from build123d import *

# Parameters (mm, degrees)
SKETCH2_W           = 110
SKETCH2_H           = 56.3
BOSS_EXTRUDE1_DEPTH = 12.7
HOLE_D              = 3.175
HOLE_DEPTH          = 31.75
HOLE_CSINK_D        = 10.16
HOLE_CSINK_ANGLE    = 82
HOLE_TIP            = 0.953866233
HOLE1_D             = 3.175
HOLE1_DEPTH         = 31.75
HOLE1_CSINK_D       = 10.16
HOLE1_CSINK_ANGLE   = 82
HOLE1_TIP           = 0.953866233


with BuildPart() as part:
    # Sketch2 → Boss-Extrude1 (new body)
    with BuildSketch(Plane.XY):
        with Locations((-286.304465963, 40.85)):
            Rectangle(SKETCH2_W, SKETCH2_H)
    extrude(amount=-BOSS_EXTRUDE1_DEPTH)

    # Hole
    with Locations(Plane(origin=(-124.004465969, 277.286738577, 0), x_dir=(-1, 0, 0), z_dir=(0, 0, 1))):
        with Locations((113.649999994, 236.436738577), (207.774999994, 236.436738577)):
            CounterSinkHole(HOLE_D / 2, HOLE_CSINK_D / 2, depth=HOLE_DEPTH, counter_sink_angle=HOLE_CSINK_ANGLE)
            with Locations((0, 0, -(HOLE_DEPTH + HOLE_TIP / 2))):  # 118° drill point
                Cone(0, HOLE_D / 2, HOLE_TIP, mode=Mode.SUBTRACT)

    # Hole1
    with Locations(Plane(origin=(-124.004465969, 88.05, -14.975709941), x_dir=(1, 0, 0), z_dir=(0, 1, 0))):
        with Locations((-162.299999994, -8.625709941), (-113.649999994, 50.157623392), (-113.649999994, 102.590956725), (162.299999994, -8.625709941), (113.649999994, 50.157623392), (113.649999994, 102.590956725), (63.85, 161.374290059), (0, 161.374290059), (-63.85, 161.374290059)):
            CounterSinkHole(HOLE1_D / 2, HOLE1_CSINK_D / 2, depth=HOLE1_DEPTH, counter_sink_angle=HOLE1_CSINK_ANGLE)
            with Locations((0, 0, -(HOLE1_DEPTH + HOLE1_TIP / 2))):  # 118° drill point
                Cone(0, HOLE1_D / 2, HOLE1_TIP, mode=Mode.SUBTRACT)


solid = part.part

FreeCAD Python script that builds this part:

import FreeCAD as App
import Part
import Sketcher

V = App.Vector
Q = App.Units.Quantity


def add_polygon(sketch, points):
    """Adds a closed chain of lines whose ends are joined by coincident constraints."""
    first, n = sketch.GeometryCount, len(points)
    for a, b in zip(points, points[1:] + points[:1]):
        sketch.addGeometry(Part.LineSegment(App.Vector(*a, 0), App.Vector(*b, 0)), False)
    for i in range(n):
        sketch.addConstraint(Sketcher.Constraint("Coincident", first + i, 2, first + (i + 1) % n, 1))

doc = App.newDocument("Part")
body = doc.addObject("PartDesign::Body", "Body")

sketch1 = body.newObject("Sketcher::SketchObject", "Sketch")
sketch1.AttachmentSupport = (doc.getObject("XY_Plane"), [""])
sketch1.MapMode = "FlatFace"
add_polygon(sketch1, [(-341, 69), (-341, 13), (-231, 13), (-231, 69)])
sketch1.addConstraint(Sketcher.Constraint("Vertical", 0))
sketch1.addConstraint(Sketcher.Constraint("Horizontal", 1))
sketch1.addConstraint(Sketcher.Constraint("Vertical", 2))
sketch1.addConstraint(Sketcher.Constraint("Horizontal", 3))
sketch1.addConstraint(Sketcher.Constraint("DistanceY", -1, 1, 0, 2, Q("0.5 in")))
sketch1.addConstraint(Sketcher.Constraint("DistanceX", 1, 1, 1, 2, 110.0))
sketch1.addConstraint(Sketcher.Constraint("DistanceY", 0, 2, 0, 1, 56.3))
sketch1.addConstraint(Sketcher.Constraint("DistanceX", 0, 2, -1, 1, 341.304466))
pad1 = body.newObject("PartDesign::Pad", "Pad")
pad1.Profile = sketch1
pad1.Length = Q("0.5 in")
pad1.Reversed = True

sketch2 = body.newObject("Sketcher::SketchObject", "Sketch001")
sketch2.AttachmentSupport = (doc.getObject("XY_Plane"), [""])
sketch2.MapMode = "FlatFace"
sketch2.addGeometry(Part.Circle(V(-237.7, 40.9, 0), V(0, 0, 1), 1.6), False)
sketch2.addGeometry(Part.Circle(V(-331.8, 40.9, 0), V(0, 0, 1), 1.6), False)
sketch2.addConstraint(Sketcher.Constraint("Equal", 0, 1))
sketch2.addConstraint(Sketcher.Constraint("Horizontal", 0, 3, 1, 3))
sketch2.addConstraint(Sketcher.Constraint("Diameter", 0, Q("0.125 in")))
sketch2.addConstraint(Sketcher.Constraint("DistanceY", -1, 1, 0, 3, 40.85))
sketch2.addConstraint(Sketcher.Constraint("DistanceX", 1, 3, 0, 3, 94.125))
sketch2.addConstraint(Sketcher.Constraint("DistanceX", 0, 3, -1, 1, 237.654466))
doc.recompute()
hole = body.newObject("PartDesign::Hole", "Hole")
hole.Profile = sketch2
hole.ThreadType = "None"
hole.Diameter = Q("0.125 in")
hole.DepthType = "Dimension"
hole.Depth = Q("1.25 in")
hole.DrillPoint = "Angled"
hole.DrillPointAngle = 118
hole.HoleCutType = "Countersink"
hole.HoleCutDiameter = Q("0.4 in")
hole.HoleCutCountersinkAngle = 82

sketch3 = body.newObject("Sketcher::SketchObject", "Sketch002")
sketch3.AttachmentSupport = (doc.getObject("XZ_Plane"), [""])
sketch3.MapMode = "FlatFace"
sketch3.AttachmentOffset = App.Placement(V(0, 0, -88.05), App.Rotation())
sketch3.addGeometry(Part.Circle(V(-286.3, -6.3, 0), V(0, 0, 1), 1.6), False)
sketch3.addGeometry(Part.Circle(V(-237.7, -65.1, 0), V(0, 0, 1), 1.6), False)
sketch3.addGeometry(Part.Circle(V(-237.7, -117.6, 0), V(0, 0, 1), 1.6), False)
sketch3.addGeometry(Part.Circle(V(38.3, -6.3, 0), V(0, 0, 1), 1.6), False)
sketch3.addGeometry(Part.Circle(V(-10.4, -65.1, 0), V(0, 0, 1), 1.6), False)
sketch3.addGeometry(Part.Circle(V(-10.4, -117.6, 0), V(0, 0, 1), 1.6), False)
sketch3.addGeometry(Part.Circle(V(-60.2, -176.3, 0), V(0, 0, 1), 1.6), False)
sketch3.addGeometry(Part.Circle(V(-124, -176.3, 0), V(0, 0, 1), 1.6), False)
sketch3.addGeometry(Part.Circle(V(-187.9, -176.3, 0), V(0, 0, 1), 1.6), False)
sketch3.addConstraint(Sketcher.Constraint("Equal", 0, 1))
sketch3.addConstraint(Sketcher.Constraint("Equal", 1, 2))
sketch3.addConstraint(Sketcher.Constraint("Equal", 2, 3))
sketch3.addConstraint(Sketcher.Constraint("Equal", 3, 4))
sketch3.addConstraint(Sketcher.Constraint("Equal", 4, 5))
sketch3.addConstraint(Sketcher.Constraint("Equal", 5, 6))
sketch3.addConstraint(Sketcher.Constraint("Equal", 6, 7))
sketch3.addConstraint(Sketcher.Constraint("Equal", 7, 8))
sketch3.addConstraint(Sketcher.Constraint("Horizontal", 0, 3, 3, 3))
sketch3.addConstraint(Sketcher.Constraint("Horizontal", 1, 3, 4, 3))
sketch3.addConstraint(Sketcher.Constraint("Horizontal", 2, 3, 5, 3))
sketch3.addConstraint(Sketcher.Constraint("Horizontal", 6, 3, 7, 3))
sketch3.addConstraint(Sketcher.Constraint("Horizontal", 7, 3, 8, 3))
sketch3.addConstraint(Sketcher.Constraint("Vertical", 1, 3, 2, 3))
sketch3.addConstraint(Sketcher.Constraint("Vertical", 4, 3, 5, 3))
sketch3.addConstraint(Sketcher.Constraint("Diameter", 0, Q("0.125 in")))
sketch3.addConstraint(Sketcher.Constraint("DistanceY", 0, 3, -1, 1, Q("0.25 in")))
sketch3.addConstraint(Sketcher.Constraint("DistanceY", 6, 3, -1, 1, 176.35))
sketch3.addConstraint(Sketcher.Constraint("DistanceX", 0, 3, 1, 3, 48.65))
sketch3.addConstraint(Sketcher.Constraint("DistanceX", 1, 3, 3, 3, 275.95))
sketch3.addConstraint(Sketcher.Constraint("DistanceX", 4, 3, 3, 3, 48.65))
sketch3.addConstraint(Sketcher.Constraint("DistanceX", 6, 3, 5, 3, 49.8))
sketch3.addConstraint(Sketcher.Constraint("DistanceX", 7, 3, 6, 3, 63.85))
sketch3.addConstraint(Sketcher.Constraint("DistanceX", 8, 3, 7, 3, 63.85))
sketch3.addConstraint(Sketcher.Constraint("DistanceX", 0, 3, -1, 1, 286.304466))
sketch3.addConstraint(Sketcher.Constraint("DistanceY", 1, 3, -1, 1, 65.133333))
sketch3.addConstraint(Sketcher.Constraint("DistanceY", 2, 3, -1, 1, 117.566667))
doc.recompute()
hole2 = body.newObject("PartDesign::Hole", "Hole001")
hole2.Profile = sketch3
hole2.ThreadType = "None"
hole2.Diameter = Q("0.125 in")
hole2.DepthType = "Dimension"
hole2.Depth = Q("1.25 in")
hole2.DrillPoint = "Angled"
hole2.DrillPointAngle = 118
hole2.HoleCutType = "Countersink"
hole2.HoleCutDiameter = Q("0.4 in")
hole2.HoleCutCountersinkAngle = 82
hole2.Reversed = True

doc.recompute()
